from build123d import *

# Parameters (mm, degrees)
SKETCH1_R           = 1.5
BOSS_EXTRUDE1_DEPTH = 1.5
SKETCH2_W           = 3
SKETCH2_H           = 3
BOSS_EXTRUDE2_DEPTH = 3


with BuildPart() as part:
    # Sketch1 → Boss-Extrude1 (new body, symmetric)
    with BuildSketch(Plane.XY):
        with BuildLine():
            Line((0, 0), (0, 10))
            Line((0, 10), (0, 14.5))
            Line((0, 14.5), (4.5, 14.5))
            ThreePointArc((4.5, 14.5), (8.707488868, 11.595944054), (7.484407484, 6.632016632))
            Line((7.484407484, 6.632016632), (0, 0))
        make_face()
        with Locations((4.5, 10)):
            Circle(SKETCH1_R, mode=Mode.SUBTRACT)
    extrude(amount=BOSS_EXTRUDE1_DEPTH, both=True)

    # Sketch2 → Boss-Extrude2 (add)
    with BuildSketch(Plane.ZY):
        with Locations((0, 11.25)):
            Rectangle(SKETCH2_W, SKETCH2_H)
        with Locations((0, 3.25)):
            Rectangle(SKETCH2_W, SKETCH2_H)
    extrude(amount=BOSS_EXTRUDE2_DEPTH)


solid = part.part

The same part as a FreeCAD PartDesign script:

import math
import FreeCAD as App
import Part
import Sketcher
Q = App.Units.Quantity

doc = App.newDocument("Part")
params = doc.addObject("Spreadsheet::Sheet", "Params")
for row, (alias, value) in enumerate([
    ("sketch1_diameter", "3 mm"),
    ("sketch1_radius", "4.5 mm"),
    ("sketch1_length", "10 mm"),
    ("sketch1_width", "4.5 mm"),
    ("pad1_length", "3 mm"),
    ("sketch2_width", "3 mm"),
    ("pad2_length", "3 mm"),
], start=1):
    params.set(f"A{row}", alias)
    params.set(f"B{row}", "=" + value)
    params.setAlias(f"B{row}", alias)

body = doc.addObject("PartDesign::Body", "Body")

sketch1 = doc.addObject("Sketcher::SketchObject", "Sketch")
body.addObject(sketch1)
sketch1.AttachmentSupport = (doc.XY_Plane, [""])
sketch1.MapMode = "FlatFace"
sketch1.addGeometry([
    Part.LineSegment(App.Vector(0, 14.5, 0), App.Vector(0, 0, 0)),
    Part.LineSegment(App.Vector(0, 0, 0), App.Vector(7.484407, 6.632017, 0)),
    Part.ArcOfCircle(Part.Circle(App.Vector(4.5, 10, 0), App.Vector(0, 0, 1), 4.5), math.radians(-48.455491), math.radians(90)),
    Part.LineSegment(App.Vector(4.5, 14.5, 0), App.Vector(0, 14.5, 0)),
    Part.Circle(App.Vector(4.5, 10, 0), App.Vector(0, 0, 1), 1.5),
], False)
sketch1.addConstraint([
    Sketcher.Constraint("Coincident", 0, 2, 1, 1),
    Sketcher.Constraint("Tangent", 1, 2, 2, 1),
    Sketcher.Constraint("Tangent", 2, 2, 3, 1),
    Sketcher.Constraint("Coincident", 3, 2, 0, 1),
    Sketcher.Constraint("Vertical", 0),
    Sketcher.Constraint("Horizontal", 3),
    Sketcher.Constraint("Coincident", 0, 2, -1, 1),
    Sketcher.Constraint("Coincident", 4, 3, 2, 3),
    Sketcher.Constraint("Diameter", 4, Q("3 mm")),
    Sketcher.Constraint("Radius", 2, Q("4.5 mm")),
    Sketcher.Constraint("Distance", 1, Q("10 mm")),
    Sketcher.Constraint("DistanceX", 3, 2, 3, 1, Q("4.5 mm")),
])
sketch1.setExpression("Constraints[8]", "Params.sketch1_diameter")
sketch1.setExpression("Constraints[9]", "Params.sketch1_radius")
sketch1.setExpression("Constraints[10]", "Params.sketch1_length")
sketch1.setExpression("Constraints[11]", "Params.sketch1_width")
pad1 = doc.addObject("PartDesign::Pad", "Pad")
body.addObject(pad1)
pad1.Profile = sketch1
pad1.setExpression("Length", "Params.pad1_length")
pad1.Midplane = True

sketch2 = doc.addObject("Sketcher::SketchObject", "Sketch001")
body.addObject(sketch2)
sketch2.AttachmentSupport = (doc.YZ_Plane, [""])
sketch2.MapMode = "FlatFace"
sketch2.addGeometry([
    Part.LineSegment(App.Vector(12.75, -1.5, 0), App.Vector(9.75, -1.5, 0)),
    Part.LineSegment(App.Vector(9.75, -1.5, 0), App.Vector(9.75, 1.5, 0)),
    Part.LineSegment(App.Vector(9.75, 1.5, 0), App.Vector(12.75, 1.5, 0)),
    Part.LineSegment(App.Vector(12.75, 1.5, 0), App.Vector(12.75, -1.5, 0)),
    Part.LineSegment(App.Vector(4.75, -1.5, 0), App.Vector(1.75, -1.5, 0)),
    Part.LineSegment(App.Vector(1.75, -1.5, 0), App.Vector(1.75, 1.5, 0)),
    Part.LineSegment(App.Vector(1.75, 1.5, 0), App.Vector(4.75, 1.5, 0)),
    Part.LineSegment(App.Vector(4.75, 1.5, 0), App.Vector(4.75, -1.5, 0)),
], False)
sketch2.addConstraint([
    Sketcher.Constraint("Coincident", 0, 2, 1, 1),
    Sketcher.Constraint("Coincident", 1, 2, 2, 1),
    Sketcher.Constraint("Coincident", 2, 2, 3, 1),
    Sketcher.Constraint("Coincident", 3, 2, 0, 1),
    Sketcher.Constraint("Coincident", 4, 2, 5, 1),
    Sketcher.Constraint("Coincident", 5, 2, 6, 1),
    Sketcher.Constraint("Coincident", 6, 2, 7, 1),
    Sketcher.Constraint("Coincident", 7, 2, 4, 1),
    Sketcher.Constraint("Horizontal", 0),
    Sketcher.Constraint("Vertical", 1),
    Sketcher.Constraint("Horizontal", 2),
    Sketcher.Constraint("Vertical", 3),
    Sketcher.Constraint("Horizontal", 4),
    Sketcher.Constraint("Vertical", 5),
    Sketcher.Constraint("Horizontal", 6),
    Sketcher.Constraint("Vertical", 7),
    Sketcher.Constraint("Horizontal", 3, 2, 4, 2),
    Sketcher.Constraint("Horizontal", 2, 2, 5, 2),
    Sketcher.Constraint("Equal", 2, 4),
    Sketcher.Constraint("Equal", 6, 1),
    Sketcher.Constraint("DistanceX", 0, 2, 0, 1, Q("3 mm")),
    Sketcher.Constraint("DistanceX", 4, 2, 0, 2, Q("8 mm")),
    Sketcher.Constraint("DistanceY", 0, 2, -1, 1, Q("1.5 mm")),
    Sketcher.Constraint("DistanceX", -1, 1, 0, 2, Q("9.75 mm")),
])
sketch2.setExpression("Constraints[20]", "Params.sketch2_width")
pad2 = doc.addObject("PartDesign::Pad", "Pad001")
body.addObject(pad2)
pad2.Profile = sketch2
pad2.setExpression("Length", "Params.pad2_length")
pad2.Reversed = True

doc.recompute()
